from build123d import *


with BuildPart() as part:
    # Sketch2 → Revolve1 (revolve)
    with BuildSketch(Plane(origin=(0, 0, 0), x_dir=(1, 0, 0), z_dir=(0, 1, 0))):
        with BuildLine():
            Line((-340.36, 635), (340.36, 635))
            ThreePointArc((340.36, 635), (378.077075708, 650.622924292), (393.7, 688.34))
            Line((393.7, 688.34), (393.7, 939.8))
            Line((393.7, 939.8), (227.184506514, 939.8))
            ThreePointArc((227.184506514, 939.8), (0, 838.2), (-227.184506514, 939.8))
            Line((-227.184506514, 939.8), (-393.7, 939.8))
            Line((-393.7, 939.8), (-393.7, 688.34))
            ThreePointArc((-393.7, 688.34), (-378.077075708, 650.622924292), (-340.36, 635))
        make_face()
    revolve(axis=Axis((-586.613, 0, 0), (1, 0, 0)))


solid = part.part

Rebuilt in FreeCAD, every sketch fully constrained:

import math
import FreeCAD as App
import Part
import Sketcher

V = App.Vector
Q = App.Units.Quantity

doc = App.newDocument("Part")
body = doc.addObject("PartDesign::Body", "Body")

# Sketch on XZ plane
sketch1 = body.newObject("Sketcher::SketchObject", "Sketch")
sketch1.AttachmentSupport = (doc.getObject("XZ_Plane"), [""])
sketch1.MapMode = "FlatFace"
sketch1.addGeometry([
    Part.LineSegment(V(-340, -635, 0), V(340, -635, 0)),  # 0
    Part.ArcOfCircle(Part.Circle(V(340, -688, 0), V(0, 0, 1), 53), math.radians(0), math.radians(90)),  # 1
    Part.LineSegment(V(394, -688, 0), V(394, -940, 0)),  # 2
    Part.LineSegment(V(394, -940, 0), V(227, -940, 0)),  # 3
    Part.ArcOfCircle(Part.Circle(V(0, -1143, 0), V(0, 0, 1), 305), math.radians(42), math.radians(138)),  # 4
    Part.LineSegment(V(-227, -940, 0), V(-394, -940, 0)),  # 5
    Part.LineSegment(V(-394, -940, 0), V(-394, -688, 0)),  # 6
    Part.ArcOfCircle(Part.Circle(V(-340, -688, 0), V(0, 0, 1), 53), math.radians(90), math.radians(180)),  # 7
], False)
sketch1.addConstraint([
    Sketcher.Constraint("Tangent", 0, 2, 1, 2),
    Sketcher.Constraint("Tangent", 1, 1, 2, 1),
    Sketcher.Constraint("Coincident", 2, 2, 3, 1),
    Sketcher.Constraint("Coincident", 3, 2, 4, 1),
    Sketcher.Constraint("Coincident", 4, 2, 5, 1),
    Sketcher.Constraint("Coincident", 5, 2, 6, 1),
    Sketcher.Constraint("Tangent", 6, 2, 7, 2),
    Sketcher.Constraint("Tangent", 7, 1, 0, 1),
    Sketcher.Constraint("Horizontal", 0),
    Sketcher.Constraint("Vertical", 2),
    Sketcher.Constraint("Horizontal", 3),
    Sketcher.Constraint("Horizontal", 5),
    Sketcher.Constraint("Vertical", 6),
    Sketcher.Constraint("Equal", 1, 7),
    Sketcher.Constraint("Symmetric", 3, 2, 4, 2, -2),
    Sketcher.Constraint("Equal", 3, 5),
    Sketcher.Constraint("Radius", 4, Q("12 in")),
    Sketcher.Constraint("Radius", 1, Q("2.1 in")),
    Sketcher.Constraint("DistanceX", 0, 1, 0, 2, Q("26.8 in")),
    Sketcher.Constraint("DistanceY", 2, 2, 2, 1, Q("9.9 in")),
    Sketcher.Constraint("DistanceY", 4, 3, -1, 1, Q("45 in")),
    Sketcher.Constraint("DistanceY", 0, 2, -1, 1, Q("25 in")),
])
revolution = body.newObject("PartDesign::Revolution", "Revolution")
revolution.Profile = sketch1
revolution.ReferenceAxis = (sketch1, ["H_Axis"])
revolution.Angle = 360

doc.recompute()
